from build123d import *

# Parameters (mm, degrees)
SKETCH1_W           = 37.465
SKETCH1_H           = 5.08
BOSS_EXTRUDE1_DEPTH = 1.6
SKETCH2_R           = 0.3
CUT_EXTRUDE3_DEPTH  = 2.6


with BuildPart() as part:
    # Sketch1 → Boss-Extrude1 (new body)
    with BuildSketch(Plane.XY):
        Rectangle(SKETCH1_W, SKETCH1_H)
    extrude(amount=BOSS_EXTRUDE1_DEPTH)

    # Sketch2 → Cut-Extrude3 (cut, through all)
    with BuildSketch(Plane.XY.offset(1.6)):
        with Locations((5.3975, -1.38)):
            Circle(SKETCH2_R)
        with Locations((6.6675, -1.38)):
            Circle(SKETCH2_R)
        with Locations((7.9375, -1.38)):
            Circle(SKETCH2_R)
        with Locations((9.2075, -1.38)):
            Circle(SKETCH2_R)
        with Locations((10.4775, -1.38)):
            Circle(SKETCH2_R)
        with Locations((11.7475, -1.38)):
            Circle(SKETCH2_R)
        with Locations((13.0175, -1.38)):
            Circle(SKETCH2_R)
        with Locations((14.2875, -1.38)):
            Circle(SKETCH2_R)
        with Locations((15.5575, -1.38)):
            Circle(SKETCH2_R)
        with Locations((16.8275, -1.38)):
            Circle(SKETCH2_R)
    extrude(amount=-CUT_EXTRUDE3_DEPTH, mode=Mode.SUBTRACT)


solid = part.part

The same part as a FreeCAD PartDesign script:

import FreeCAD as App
import Part
import Sketcher
from FreeCAD import Vector


def add_polygon(sketch, points):
    """Adds a closed chain of lines whose ends are joined by coincident constraints."""
    first, n = sketch.GeometryCount, len(points)
    for a, b in zip(points, points[1:] + points[:1]):
        sketch.addGeometry(Part.LineSegment(App.Vector(*a, 0), App.Vector(*b, 0)), False)
    for i in range(n):
        sketch.addConstraint(Sketcher.Constraint("Coincident", first + i, 2, first + (i + 1) % n, 1))

doc = App.newDocument("Part")
params = doc.addObject("Spreadsheet::Sheet", "Params")
for row, (alias, value) in enumerate([
    ("sketch1_height", "5.08 mm"),
    ("pad1_length", "1.6 mm"),
    ("sketch2_diameter", "0.6 mm"),
], start=1):
    params.set(f"A{row}", alias)
    params.set(f"B{row}", "=" + value)
    params.setAlias(f"B{row}", alias)

body = doc.addObject("PartDesign::Body", "Body")

sketch1 = body.newObject("Sketcher::SketchObject", "Sketch")
sketch1.AttachmentSupport = (doc.getObject("XY_Plane"), [""])
sketch1.MapMode = "FlatFace"
add_polygon(sketch1, [(-19, 3), (-19, -3), (19, -3), (19, 3)])
sketch1.addConstraint([
    Sketcher.Constraint("Vertical", 0),
    Sketcher.Constraint("Horizontal", 1),
    Sketcher.Constraint("Vertical", 2),
    Sketcher.Constraint("Horizontal", 3),
    Sketcher.Constraint("Symmetric", 0, 2, 2, 2, -1, 1),
    Sketcher.Constraint("DistanceY", 0, 2, 0, 1, 5.08),
    Sketcher.Constraint("DistanceX", 1, 1, 1, 2, 37.465),
])
sketch1.setExpression("Constraints[9]", "Params.sketch1_height")
pad1 = body.newObject("PartDesign::Pad", "Pad")
pad1.Profile = sketch1
pad1.setExpression("Length", "Params.pad1_length")

sketch2 = body.newObject("Sketcher::SketchObject", "Sketch001")
sketch2.AttachmentSupport = (doc.getObject("XY_Plane"), [""])
sketch2.MapMode = "FlatFace"
sketch2.AttachmentOffset = App.Placement(Vector(0, 0, 1.6), App.Rotation())
sketch2.addGeometry([
    Part.Circle(Vector(5.4, -1.38, 0), Vector(0, 0, 1), 0.3),
    Part.Circle(Vector(6.67, -1.38, 0), Vector(0, 0, 1), 0.3),
    Part.Circle(Vector(7.94, -1.38, 0), Vector(0, 0, 1), 0.3),
    Part.Circle(Vector(9.21, -1.38, 0), Vector(0, 0, 1), 0.3),
    Part.Circle(Vector(10.48, -1.38, 0), Vector(0, 0, 1), 0.3),
    Part.Circle(Vector(11.75, -1.38, 0), Vector(0, 0, 1), 0.3),
    Part.Circle(Vector(13.02, -1.38, 0), Vector(0, 0, 1), 0.3),
    Part.Circle(Vector(14.29, -1.38, 0), Vector(0, 0, 1), 0.3),
    Part.Circle(Vector(15.56, -1.38, 0), Vector(0, 0, 1), 0.3),
    Part.Circle(Vector(16.83, -1.38, 0), Vector(0, 0, 1), 0.3),
], False)
sketch2.addConstraint([
    Sketcher.Constraint("Equal", 0, 1),
    Sketcher.Constraint("Equal", 1, 2),
    Sketcher.Constraint("Equal", 2, 3),
    Sketcher.Constraint("Equal", 3, 4),
    Sketcher.Constraint("Equal", 4, 5),
    Sketcher.Constraint("Equal", 5, 6),
    Sketcher.Constraint("Equal", 6, 7),
    Sketcher.Constraint("Equal", 7, 8),
    Sketcher.Constraint("Equal", 8, 9),
    Sketcher.Constraint("Horizontal", 0, 3, 1, 3),
    Sketcher.Constraint("Horizontal", 1, 3, 2, 3),
    Sketcher.Constraint("Horizontal", 2, 3, 3, 3),
    Sketcher.Constraint("Horizontal", 3, 3, 4, 3),
    Sketcher.Constraint("Horizontal", 4, 3, 5, 3),
    Sketcher.Constraint("Horizontal", 5, 3, 6, 3),
    Sketcher.Constraint("Horizontal", 6, 3, 7, 3),
    Sketcher.Constraint("Horizontal", 7, 3, 8, 3),
    Sketcher.Constraint("Horizontal", 8, 3, 9, 3),
    Sketcher.Constraint("Diameter", 0, 0.6),
    Sketcher.Constraint("DistanceY", 0, 3, -1, 1, 1.38),
    Sketcher.Constraint("DistanceX", 0, 3, 1, 3, 1.27),
    Sketcher.Constraint("DistanceX", 1, 3, 2, 3, 1.27),
    Sketcher.Constraint("DistanceX", 2, 3, 3, 3, 1.27),
    Sketcher.Constraint("DistanceX", 3, 3, 4, 3, 1.27),
    Sketcher.Constraint("DistanceX", 4, 3, 5, 3, 1.27),
    Sketcher.Constraint("DistanceX", 5, 3, 6, 3, 1.27),
    Sketcher.Constraint("DistanceX", 6, 3, 7, 3, 1.27),
    Sketcher.Constraint("DistanceX", 7, 3, 8, 3, 1.27),
    Sketcher.Constraint("DistanceX", 8, 3, 9, 3, 1.27),
    Sketcher.Constraint("DistanceX", -1, 1, 0, 3, 5.3975),
])
sketch2.setExpression("Constraints[18]", "Params.sketch2_diameter")
pocket1 = body.newObject("PartDesign::Pocket", "Pocket")
pocket1.Profile = sketch2
pocket1.Type = "ThroughAll"

doc.recompute()
